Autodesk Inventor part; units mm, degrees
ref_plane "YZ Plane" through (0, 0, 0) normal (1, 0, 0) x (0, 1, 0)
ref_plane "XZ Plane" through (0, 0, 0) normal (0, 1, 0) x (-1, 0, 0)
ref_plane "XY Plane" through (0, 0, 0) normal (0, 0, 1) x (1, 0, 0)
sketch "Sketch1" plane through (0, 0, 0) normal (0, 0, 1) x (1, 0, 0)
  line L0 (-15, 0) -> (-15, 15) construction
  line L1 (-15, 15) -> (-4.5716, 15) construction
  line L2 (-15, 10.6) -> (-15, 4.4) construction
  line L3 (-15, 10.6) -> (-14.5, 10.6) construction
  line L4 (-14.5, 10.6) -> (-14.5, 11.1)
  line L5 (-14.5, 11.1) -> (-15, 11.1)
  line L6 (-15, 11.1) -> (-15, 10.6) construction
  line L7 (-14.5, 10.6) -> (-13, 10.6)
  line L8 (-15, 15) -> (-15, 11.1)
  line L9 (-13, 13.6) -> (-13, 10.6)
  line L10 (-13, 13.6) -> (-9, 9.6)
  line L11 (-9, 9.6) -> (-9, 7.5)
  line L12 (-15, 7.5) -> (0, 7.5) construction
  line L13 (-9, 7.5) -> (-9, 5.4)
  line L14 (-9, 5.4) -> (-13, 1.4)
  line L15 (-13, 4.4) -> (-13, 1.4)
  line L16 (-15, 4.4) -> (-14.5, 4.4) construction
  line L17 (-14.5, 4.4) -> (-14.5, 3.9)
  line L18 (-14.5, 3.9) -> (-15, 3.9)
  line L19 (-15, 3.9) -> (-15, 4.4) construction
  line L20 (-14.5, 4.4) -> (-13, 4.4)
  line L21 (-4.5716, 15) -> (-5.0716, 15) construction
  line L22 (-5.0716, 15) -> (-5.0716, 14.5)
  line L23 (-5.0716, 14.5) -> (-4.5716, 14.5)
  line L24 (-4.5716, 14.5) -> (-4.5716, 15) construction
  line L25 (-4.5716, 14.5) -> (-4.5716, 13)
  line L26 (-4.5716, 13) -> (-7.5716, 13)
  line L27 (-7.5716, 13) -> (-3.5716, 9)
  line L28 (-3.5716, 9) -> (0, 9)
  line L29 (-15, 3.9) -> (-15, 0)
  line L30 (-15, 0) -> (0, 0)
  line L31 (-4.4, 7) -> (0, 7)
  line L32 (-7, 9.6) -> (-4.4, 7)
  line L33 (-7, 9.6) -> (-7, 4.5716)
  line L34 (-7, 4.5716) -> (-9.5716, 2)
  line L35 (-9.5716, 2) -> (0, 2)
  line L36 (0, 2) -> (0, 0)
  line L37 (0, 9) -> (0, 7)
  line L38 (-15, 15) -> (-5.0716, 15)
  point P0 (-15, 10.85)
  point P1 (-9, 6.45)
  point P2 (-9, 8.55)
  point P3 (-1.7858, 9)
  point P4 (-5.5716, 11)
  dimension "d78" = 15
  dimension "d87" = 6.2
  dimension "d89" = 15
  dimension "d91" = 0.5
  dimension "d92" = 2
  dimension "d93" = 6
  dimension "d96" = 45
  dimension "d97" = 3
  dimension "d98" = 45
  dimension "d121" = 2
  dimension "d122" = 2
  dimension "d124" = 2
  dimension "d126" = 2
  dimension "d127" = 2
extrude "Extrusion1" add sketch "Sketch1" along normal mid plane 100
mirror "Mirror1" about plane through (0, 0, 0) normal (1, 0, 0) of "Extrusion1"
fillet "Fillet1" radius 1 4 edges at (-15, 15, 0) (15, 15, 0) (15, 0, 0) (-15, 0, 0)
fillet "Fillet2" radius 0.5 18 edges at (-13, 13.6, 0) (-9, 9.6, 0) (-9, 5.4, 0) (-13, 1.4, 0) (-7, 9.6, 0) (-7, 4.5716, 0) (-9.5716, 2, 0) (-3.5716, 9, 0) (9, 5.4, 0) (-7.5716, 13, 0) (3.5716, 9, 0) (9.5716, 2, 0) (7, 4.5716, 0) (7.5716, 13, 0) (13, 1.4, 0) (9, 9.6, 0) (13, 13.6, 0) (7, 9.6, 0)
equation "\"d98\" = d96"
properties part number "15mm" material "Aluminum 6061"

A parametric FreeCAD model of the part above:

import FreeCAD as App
import Part
import Sketcher


def edges_at(feature, points):
    """Names of the edges that pass closest to the given points."""
    edges = feature.Shape.Edges
    near = lambda p: min(range(len(edges)), key=lambda i: edges[i].distToShape(Part.Vertex(*p))[0])
    return sorted({f"Edge{near(p) + 1}" for p in points})

doc = App.newDocument("Part")
body = doc.addObject("PartDesign::Body", "Body")

sketch1 = body.newObject("Sketcher::SketchObject", "Sketch")
sketch1.AttachmentSupport = (doc.getObject("XY_Plane"), [""])
sketch1.MapMode = "FlatFace"
sketch1.addGeometry(Part.LineSegment(App.Vector(-14.5, 11.1, 0), App.Vector(-14.5, 10.6, 0)), False)
sketch1.addGeometry(Part.LineSegment(App.Vector(-14.5, 10.6, 0), App.Vector(-13, 10.6, 0)), False)
sketch1.addGeometry(Part.LineSegment(App.Vector(-13, 10.6, 0), App.Vector(-13, 13.6, 0)), False)
sketch1.addGeometry(Part.LineSegment(App.Vector(-13, 13.6, 0), App.Vector(-9, 9.6, 0)), False)
sketch1.addGeometry(Part.LineSegment(App.Vector(-9, 9.6, 0), App.Vector(-9, 5.4, 0)), False)
sketch1.addGeometry(Part.LineSegment(App.Vector(-9, 5.4, 0), App.Vector(-13, 1.4, 0)), False)
sketch1.addGeometry(Part.LineSegment(App.Vector(-13, 1.4, 0), App.Vector(-13, 4.4, 0)), False)
sketch1.addGeometry(Part.LineSegment(App.Vector(-13, 4.4, 0), App.Vector(-14.5, 4.4, 0)), False)
sketch1.addGeometry(Part.LineSegment(App.Vector(-14.5, 4.4, 0), App.Vector(-14.5, 3.9, 0)), False)
sketch1.addGeometry(Part.LineSegment(App.Vector(-14.5, 3.9, 0), App.Vector(-15, 3.9, 0)), False)
sketch1.addGeometry(Part.LineSegment(App.Vector(-15, 3.9, 0), App.Vector(-15, 0, 0)), False)
sketch1.addGeometry(Part.LineSegment(App.Vector(-15, 0, 0), App.Vector(0, 0, 0)), False)
sketch1.addGeometry(Part.LineSegment(App.Vector(0, 0, 0), App.Vector(0, 2, 0)), False)
sketch1.addGeometry(Part.LineSegment(App.Vector(0, 2, 0), App.Vector(-9.6, 2, 0)), False)
sketch1.addGeometry(Part.LineSegment(App.Vector(-9.6, 2, 0), App.Vector(-7, 4.6, 0)), False)
sketch1.addGeometry(Part.LineSegment(App.Vector(-7, 4.6, 0), App.Vector(-7, 9.6, 0)), False)
sketch1.addGeometry(Part.LineSegment(App.Vector(-7, 9.6, 0), App.Vector(-4.4, 7, 0)), False)
sketch1.addGeometry(Part.LineSegment(App.Vector(-4.4, 7, 0), App.Vector(0, 7, 0)), False)
sketch1.addGeometry(Part.LineSegment(App.Vector(0, 7, 0), App.Vector(0, 9, 0)), False)
sketch1.addGeometry(Part.LineSegment(App.Vector(0, 9, 0), App.Vector(-3.6, 9, 0)), False)
sketch1.addGeometry(Part.LineSegment(App.Vector(-3.6, 9, 0), App.Vector(-7.6, 13, 0)), False)
sketch1.addGeometry(Part.LineSegment(App.Vector(-7.6, 13, 0), App.Vector(-4.6, 13, 0)), False)
sketch1.addGeometry(Part.LineSegment(App.Vector(-4.6, 13, 0), App.Vector(-4.6, 14.5, 0)), False)
sketch1.addGeometry(Part.LineSegment(App.Vector(-4.6, 14.5, 0), App.Vector(-5.1, 14.5, 0)), False)
sketch1.addGeometry(Part.LineSegment(App.Vector(-5.1, 14.5, 0), App.Vector(-5.1, 15, 0)), False)
sketch1.addGeometry(Part.LineSegment(App.Vector(-5.1, 15, 0), App.Vector(-15, 15, 0)), False)
sketch1.addGeometry(Part.LineSegment(App.Vector(-15, 15, 0), App.Vector(-15, 11.1, 0)), False)
sketch1.addGeometry(Part.LineSegment(App.Vector(-15, 11.1, 0), App.Vector(-14.5, 11.1, 0)), False)
sketch1.addConstraint(Sketcher.Constraint("Coincident", 0, 2, 1, 1))
sketch1.addConstraint(Sketcher.Constraint("Coincident", 1, 2, 2, 1))
sketch1.addConstraint(Sketcher.Constraint("Coincident", 2, 2, 3, 1))
sketch1.addConstraint(Sketcher.Constraint("Coincident", 3, 2, 4, 1))
sketch1.addConstraint(Sketcher.Constraint("Coincident", 4, 2, 5, 1))
sketch1.addConstraint(Sketcher.Constraint("Coincident", 5, 2, 6, 1))
sketch1.addConstraint(Sketcher.Constraint("Coincident", 6, 2, 7, 1))
sketch1.addConstraint(Sketcher.Constraint("Coincident", 7, 2, 8, 1))
sketch1.addConstraint(Sketcher.Constraint("Coincident", 8, 2, 9, 1))
sketch1.addConstraint(Sketcher.Constraint("Coincident", 9, 2, 10, 1))
sketch1.addConstraint(Sketcher.Constraint("Coincident", 10, 2, 11, 1))
sketch1.addConstraint(Sketcher.Constraint("Coincident", 11, 2, 12, 1))
sketch1.addConstraint(Sketcher.Constraint("Coincident", 12, 2, 13, 1))
sketch1.addConstraint(Sketcher.Constraint("Coincident", 13, 2, 14, 1))
sketch1.addConstraint(Sketcher.Constraint("Coincident", 14, 2, 15, 1))
sketch1.addConstraint(Sketcher.Constraint("Coincident", 15, 2, 16, 1))
sketch1.addConstraint(Sketcher.Constraint("Coincident", 16, 2, 17, 1))
sketch1.addConstraint(Sketcher.Constraint("Coincident", 17, 2, 18, 1))
sketch1.addConstraint(Sketcher.Constraint("Coincident", 18, 2, 19, 1))
sketch1.addConstraint(Sketcher.Constraint("Coincident", 19, 2, 20, 1))
sketch1.addConstraint(Sketcher.Constraint("Coincident", 20, 2, 21, 1))
sketch1.addConstraint(Sketcher.Constraint("Coincident", 21, 2, 22, 1))
sketch1.addConstraint(Sketcher.Constraint("Coincident", 22, 2, 23, 1))
sketch1.addConstraint(Sketcher.Constraint("Coincident", 23, 2, 24, 1))
sketch1.addConstraint(Sketcher.Constraint("Coincident", 24, 2, 25, 1))
sketch1.addConstraint(Sketcher.Constraint("Coincident", 25, 2, 26, 1))
sketch1.addConstraint(Sketcher.Constraint("Coincident", 26, 2, 27, 1))
sketch1.addConstraint(Sketcher.Constraint("Coincident", 27, 2, 0, 1))
sketch1.addConstraint(Sketcher.Constraint("Vertical", 0))
sketch1.addConstraint(Sketcher.Constraint("Horizontal", 1))
sketch1.addConstraint(Sketcher.Constraint("Vertical", 2))
sketch1.addConstraint(Sketcher.Constraint("Vertical", 4))
sketch1.addConstraint(Sketcher.Constraint("Vertical", 6))
sketch1.addConstraint(Sketcher.Constraint("Horizontal", 7))
sketch1.addConstraint(Sketcher.Constraint("Vertical", 8))
sketch1.addConstraint(Sketcher.Constraint("Horizontal", 9))
sketch1.addConstraint(Sketcher.Constraint("Vertical", 10))
sketch1.addConstraint(Sketcher.Constraint("Horizontal", 11))
sketch1.addConstraint(Sketcher.Constraint("Vertical", 12))
sketch1.addConstraint(Sketcher.Constraint("Horizontal", 13))
sketch1.addConstraint(Sketcher.Constraint("Vertical", 15))
sketch1.addConstraint(Sketcher.Constraint("Horizontal", 17))
sketch1.addConstraint(Sketcher.Constraint("Vertical", 18))
sketch1.addConstraint(Sketcher.Constraint("Horizontal", 19))
sketch1.addConstraint(Sketcher.Constraint("Horizontal", 21))
sketch1.addConstraint(Sketcher.Constraint("Vertical", 22))
sketch1.addConstraint(Sketcher.Constraint("Horizontal", 23))
sketch1.addConstraint(Sketcher.Constraint("Vertical", 24))
sketch1.addConstraint(Sketcher.Constraint("Horizontal", 25))
sketch1.addConstraint(Sketcher.Constraint("Vertical", 26))
sketch1.addConstraint(Sketcher.Constraint("Horizontal", 27))
sketch1.addConstraint(Sketcher.Constraint("Coincident", 11, 2, -1, 1))
sketch1.addConstraint(Sketcher.Constraint("PointOnObject", 17, 2, -2))
sketch1.addConstraint(Sketcher.Constraint("Perpendicular", 3, 5))
sketch1.addConstraint(Sketcher.Constraint("Parallel", 5, 14))
sketch1.addConstraint(Sketcher.Constraint("Perpendicular", 14, 16))
sketch1.addConstraint(Sketcher.Constraint("Parallel", 16, 20))
sketch1.addConstraint(Sketcher.Constraint("Horizontal", 3, 2, 15, 2))
sketch1.addConstraint(Sketcher.Constraint("Vertical", 2, 2, 5, 2))
sketch1.addConstraint(Sketcher.Constraint("Vertical", 0, 2, 7, 2))
sketch1.addConstraint(Sketcher.Constraint("Vertical", 10, 2, 25, 2))
sketch1.addConstraint(Sketcher.Constraint("Equal", 9, 23))
sketch1.addConstraint(Sketcher.Constraint("Equal", 27, 0))
sketch1.addConstraint(Sketcher.Constraint("Equal", 21, 2))
sketch1.addConstraint(Sketcher.Constraint("Equal", 2, 6))
sketch1.addConstraint(Sketcher.Constraint("Equal", 0, 8))
sketch1.addConstraint(Sketcher.Constraint("Equal", 12, 18))
sketch1.addConstraint(Sketcher.Constraint("Equal", 7, 22))
sketch1.addConstraint(Sketcher.Constraint("Equal", 8, 24))
sketch1.addConstraint(Sketcher.Constraint("Equal", 10, 26))
sketch1.addConstraint(Sketcher.Constraint("Equal", 3, 5))
sketch1.addConstraint(Sketcher.Constraint("Equal", 5, 20))
sketch1.addConstraint(Sketcher.Constraint("DistanceX", 11, 1, 11, 2, 15.0))
sketch1.addConstraint(Sketcher.Constraint("DistanceX", 21, 1, 21, 2, 3.0))
sketch1.addConstraint(Sketcher.Constraint("DistanceY", 12, 1, 12, 2, 2.0))
sketch1.addConstraint(Sketcher.Constraint("DistanceX", 9, 2, 9, 1, 0.5))
sketch1.addConstraint(Sketcher.Constraint("DistanceY", -1, 1, 24, 2, 15.0))
sketch1.addConstraint(Sketcher.Constraint("DistanceX", 9, 2, 6, 2, 2.0))
sketch1.addConstraint(Sketcher.Constraint("DistanceX", 9, 2, 4, 2, 6.0))
sketch1.addConstraint(Sketcher.Constraint("DistanceX", 4, 2, 14, 2, 2.0))
sketch1.addConstraint(Sketcher.Constraint("DistanceY", 6, 2, 1, 2, 6.2))
sketch1.addConstraint(Sketcher.Constraint("DistanceX", 13, 2, 13, 1, 9.5716))
sketch1.addConstraint(Sketcher.Constraint("DistanceX", 19, 2, 19, 1, 3.5716))
pad1 = body.newObject("PartDesign::Pad", "Pad")
pad1.Profile = sketch1
pad1.Length = 100
pad1.Midplane = True
doc.recompute()

mirrored = body.newObject("PartDesign::Mirrored", "Mirrored")
mirrored.Originals = [pad1]
mirrored.MirrorPlane = (doc.getObject("YZ_Plane"), [""])
body.Tip = mirrored
doc.recompute()

fillet = body.newObject("PartDesign::Fillet", "Fillet")
fillet.Base = (mirrored, edges_at(mirrored, [
    (-15, 15, 0),
    (15, 15, 0),
    (15, 0, 0),
    (-15, 0, 0),
]))
fillet.Radius = 1
doc.recompute()

fillet2 = body.newObject("PartDesign::Fillet", "Fillet001")
fillet2.Base = (fillet, edges_at(fillet, [
    (-13, 13.6, 0),
    (-9, 9.6, 0),
    (-9, 5.4, 0),
    (-13, 1.4, 0),
    (-7, 9.6, 0),
    (-7, 4.572, 0),
    (-9.572, 2, 0),
    (-3.572, 9, 0),
    (9, 5.4, 0),
    (-7.572, 13, 0),
    (3.572, 9, 0),
    (9.572, 2, 0),
    (7, 4.572, 0),
    (7.572, 13, 0),
    (13, 1.4, 0),
    (9, 9.6, 0),
    (13, 13.6, 0),
    (7, 9.6, 0),
]))
fillet2.Radius = 0.5

doc.recompute()
